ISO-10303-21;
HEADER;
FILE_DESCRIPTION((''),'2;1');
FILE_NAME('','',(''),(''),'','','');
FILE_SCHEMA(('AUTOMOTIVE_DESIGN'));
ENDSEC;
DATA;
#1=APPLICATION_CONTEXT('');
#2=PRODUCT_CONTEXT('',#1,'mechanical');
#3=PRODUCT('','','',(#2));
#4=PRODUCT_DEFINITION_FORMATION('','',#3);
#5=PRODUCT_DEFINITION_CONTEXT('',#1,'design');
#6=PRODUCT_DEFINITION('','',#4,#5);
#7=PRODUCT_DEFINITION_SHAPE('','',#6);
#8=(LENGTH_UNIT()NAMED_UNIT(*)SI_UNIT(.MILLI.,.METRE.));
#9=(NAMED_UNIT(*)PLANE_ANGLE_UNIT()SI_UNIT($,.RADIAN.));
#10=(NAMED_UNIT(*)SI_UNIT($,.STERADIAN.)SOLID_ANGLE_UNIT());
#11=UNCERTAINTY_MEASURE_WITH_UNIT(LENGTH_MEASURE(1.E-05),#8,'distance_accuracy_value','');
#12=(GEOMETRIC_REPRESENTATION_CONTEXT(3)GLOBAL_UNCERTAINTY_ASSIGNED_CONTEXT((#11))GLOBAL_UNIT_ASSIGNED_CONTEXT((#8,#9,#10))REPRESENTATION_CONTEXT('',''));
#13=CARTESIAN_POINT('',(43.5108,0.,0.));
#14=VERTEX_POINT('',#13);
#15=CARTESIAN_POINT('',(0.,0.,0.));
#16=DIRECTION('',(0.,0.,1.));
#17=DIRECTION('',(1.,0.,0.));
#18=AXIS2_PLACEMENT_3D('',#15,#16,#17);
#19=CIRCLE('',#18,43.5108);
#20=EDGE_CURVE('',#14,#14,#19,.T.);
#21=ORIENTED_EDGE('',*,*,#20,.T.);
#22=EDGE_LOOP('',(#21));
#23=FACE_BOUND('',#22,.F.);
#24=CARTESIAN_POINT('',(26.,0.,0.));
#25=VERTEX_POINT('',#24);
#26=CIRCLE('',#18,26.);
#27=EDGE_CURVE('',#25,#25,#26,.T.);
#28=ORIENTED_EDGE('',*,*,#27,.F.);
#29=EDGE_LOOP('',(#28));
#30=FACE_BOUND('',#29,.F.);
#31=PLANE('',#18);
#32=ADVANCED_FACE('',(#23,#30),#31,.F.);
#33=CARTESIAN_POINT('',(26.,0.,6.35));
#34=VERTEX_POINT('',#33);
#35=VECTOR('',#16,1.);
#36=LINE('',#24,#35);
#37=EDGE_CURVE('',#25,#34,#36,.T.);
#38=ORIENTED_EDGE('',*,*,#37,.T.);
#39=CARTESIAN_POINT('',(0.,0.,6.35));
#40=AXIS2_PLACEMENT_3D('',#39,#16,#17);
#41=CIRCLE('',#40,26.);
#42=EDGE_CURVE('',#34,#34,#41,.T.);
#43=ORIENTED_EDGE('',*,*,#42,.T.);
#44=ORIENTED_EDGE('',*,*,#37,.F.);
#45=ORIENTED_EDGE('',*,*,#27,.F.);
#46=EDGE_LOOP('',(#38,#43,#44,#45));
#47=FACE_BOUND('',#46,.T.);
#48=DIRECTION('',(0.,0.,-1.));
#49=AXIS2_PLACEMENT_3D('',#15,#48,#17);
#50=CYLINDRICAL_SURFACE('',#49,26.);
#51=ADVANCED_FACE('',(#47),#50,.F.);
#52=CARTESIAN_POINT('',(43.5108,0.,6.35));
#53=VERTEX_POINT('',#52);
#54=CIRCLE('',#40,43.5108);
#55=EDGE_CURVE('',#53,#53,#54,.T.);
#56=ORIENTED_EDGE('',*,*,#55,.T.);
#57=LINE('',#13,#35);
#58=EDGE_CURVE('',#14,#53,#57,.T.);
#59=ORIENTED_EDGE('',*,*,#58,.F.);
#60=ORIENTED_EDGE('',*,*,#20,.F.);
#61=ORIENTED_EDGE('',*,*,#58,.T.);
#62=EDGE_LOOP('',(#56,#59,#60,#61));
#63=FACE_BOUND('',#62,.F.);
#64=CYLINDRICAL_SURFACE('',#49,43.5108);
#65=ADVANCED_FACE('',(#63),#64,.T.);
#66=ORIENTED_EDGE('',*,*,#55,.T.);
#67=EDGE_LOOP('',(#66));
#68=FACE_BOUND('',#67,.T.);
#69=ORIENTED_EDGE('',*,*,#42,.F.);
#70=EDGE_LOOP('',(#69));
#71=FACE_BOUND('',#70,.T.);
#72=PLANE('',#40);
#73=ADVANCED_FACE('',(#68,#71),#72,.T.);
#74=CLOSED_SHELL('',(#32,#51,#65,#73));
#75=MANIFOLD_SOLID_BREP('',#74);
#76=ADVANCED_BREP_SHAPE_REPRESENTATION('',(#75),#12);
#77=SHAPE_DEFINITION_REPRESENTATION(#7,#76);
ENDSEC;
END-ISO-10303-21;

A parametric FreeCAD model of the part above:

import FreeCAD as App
import Part
import Sketcher
from FreeCAD import Vector
Q = App.Units.Quantity

doc = App.newDocument("Part")
body = doc.addObject("PartDesign::Body", "Body")

# Sketch on XY plane
sketch1 = body.newObject("Sketcher::SketchObject", "Sketch")
sketch1.AttachmentSupport = (doc.getObject("XY_Plane"), [""])
sketch1.MapMode = "FlatFace"
sketch1.addGeometry(Part.Circle(Vector(0, 0, 0), Vector(0, 0, 1), 44), False)
sketch1.addGeometry(Part.Circle(Vector(0, 0, 0), Vector(0, 0, 1), 26), False)
sketch1.addConstraint(Sketcher.Constraint("Coincident", 0, 3, -1, 1))
sketch1.addConstraint(Sketcher.Constraint("Coincident", 1, 3, -1, 1))
sketch1.addConstraint(Sketcher.Constraint("Diameter", 1, Q("52 mm")))
sketch1.addConstraint(Sketcher.Constraint("Diameter", 0, Q("87.0216 mm")))
pad1 = body.newObject("PartDesign::Pad", "Pad")
pad1.Profile = sketch1
pad1.Length = 6.35

doc.recompute()
